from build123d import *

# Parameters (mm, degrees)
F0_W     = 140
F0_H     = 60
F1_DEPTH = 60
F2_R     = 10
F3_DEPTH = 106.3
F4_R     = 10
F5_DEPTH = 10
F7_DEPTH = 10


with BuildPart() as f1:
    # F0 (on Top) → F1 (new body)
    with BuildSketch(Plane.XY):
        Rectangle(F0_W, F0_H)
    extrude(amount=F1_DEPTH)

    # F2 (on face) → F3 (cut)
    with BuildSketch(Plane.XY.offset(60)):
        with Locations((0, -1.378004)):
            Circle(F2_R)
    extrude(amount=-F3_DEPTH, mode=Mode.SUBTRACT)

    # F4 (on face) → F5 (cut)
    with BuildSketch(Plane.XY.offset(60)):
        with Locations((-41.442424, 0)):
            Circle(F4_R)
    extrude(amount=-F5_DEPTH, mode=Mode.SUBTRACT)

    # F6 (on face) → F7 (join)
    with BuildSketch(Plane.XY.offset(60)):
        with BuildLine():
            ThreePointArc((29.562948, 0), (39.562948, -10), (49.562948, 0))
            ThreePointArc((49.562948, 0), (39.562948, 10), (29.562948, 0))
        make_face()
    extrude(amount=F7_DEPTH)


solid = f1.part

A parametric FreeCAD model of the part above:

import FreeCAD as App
import Part
import Sketcher
from FreeCAD import Vector
Q = App.Units.Quantity


def add_polygon(sketch, points):
    """Adds a closed chain of lines whose ends are joined by coincident constraints."""
    first, n = sketch.GeometryCount, len(points)
    for a, b in zip(points, points[1:] + points[:1]):
        sketch.addGeometry(Part.LineSegment(App.Vector(*a, 0), App.Vector(*b, 0)), False)
    for i in range(n):
        sketch.addConstraint(Sketcher.Constraint("Coincident", first + i, 2, first + (i + 1) % n, 1))

doc = App.newDocument("Part")
body = doc.addObject("PartDesign::Body", "Body")

# Sketch on XY plane
sketch1 = body.newObject("Sketcher::SketchObject", "Sketch")
sketch1.AttachmentSupport = (doc.getObject("XY_Plane"), [""])
sketch1.MapMode = "FlatFace"
add_polygon(sketch1, [(-70, 30), (-70, -30), (70, -30), (70, 30)])  # lines 0-3
sketch1.addConstraint(Sketcher.Constraint("Vertical", 0))
sketch1.addConstraint(Sketcher.Constraint("Horizontal", 1))
sketch1.addConstraint(Sketcher.Constraint("Vertical", 2))
sketch1.addConstraint(Sketcher.Constraint("Horizontal", 3))
sketch1.addConstraint(Sketcher.Constraint("Symmetric", 0, 2, 2, 2, -1, 1))
sketch1.addConstraint(Sketcher.Constraint("DistanceX", 1, 1, 1, 2, Q("140 mm")))
sketch1.addConstraint(Sketcher.Constraint("DistanceY", 0, 2, 0, 1, Q("60 mm")))
pad1 = body.newObject("PartDesign::Pad", "Pad")
pad1.Profile = sketch1
pad1.Length = 60

# Sketch on XY plane
sketch2 = body.newObject("Sketcher::SketchObject", "Sketch001")
sketch2.AttachmentSupport = (doc.getObject("XY_Plane"), [""])
sketch2.MapMode = "FlatFace"
sketch2.AttachmentOffset = App.Placement(Vector(0, 0, 60), App.Rotation())
sketch2.addGeometry(Part.Circle(Vector(0, -1, 0), Vector(0, 0, 1), 10), False)
sketch2.addConstraint(Sketcher.Constraint("PointOnObject", 0, 3, -2))
sketch2.addConstraint(Sketcher.Constraint("Diameter", 0, Q("20 mm")))
sketch2.addConstraint(Sketcher.Constraint("DistanceY", 0, 3, -1, 1, Q("1.378004 mm")))
pocket1 = body.newObject("PartDesign::Pocket", "Pocket")
pocket1.Profile = sketch2
pocket1.Length = 106.3

# Sketch on XY plane
sketch3 = body.newObject("Sketcher::SketchObject", "Sketch002")
sketch3.AttachmentSupport = (doc.getObject("XY_Plane"), [""])
sketch3.MapMode = "FlatFace"
sketch3.AttachmentOffset = App.Placement(Vector(0, 0, 60), App.Rotation())
sketch3.addGeometry(Part.Circle(Vector(-41, 0, 0), Vector(0, 0, 1), 10), False)
sketch3.addConstraint(Sketcher.Constraint("PointOnObject", 0, 3, -1))
sketch3.addConstraint(Sketcher.Constraint("Diameter", 0, Q("20 mm")))
sketch3.addConstraint(Sketcher.Constraint("DistanceX", 0, 3, -1, 1, Q("41.442424 mm")))
pocket2 = body.newObject("PartDesign::Pocket", "Pocket001")
pocket2.Profile = sketch3
pocket2.Length = 10

# Sketch on XY plane
sketch4 = body.newObject("Sketcher::SketchObject", "Sketch003")
sketch4.AttachmentSupport = (doc.getObject("XY_Plane"), [""])
sketch4.MapMode = "FlatFace"
sketch4.AttachmentOffset = App.Placement(Vector(0, 0, 60), App.Rotation())
sketch4.addGeometry(Part.Circle(Vector(40, 0, 0), Vector(0, 0, 1), 10), False)
sketch4.addConstraint(Sketcher.Constraint("PointOnObject", 0, 3, -1))
sketch4.addConstraint(Sketcher.Constraint("Diameter", 0, Q("20 mm")))
sketch4.addConstraint(Sketcher.Constraint("DistanceX", -1, 1, 0, 3, Q("39.562948 mm")))
pad2 = body.newObject("PartDesign::Pad", "Pad001")
pad2.Profile = sketch4
pad2.Length = 10

doc.recompute()
